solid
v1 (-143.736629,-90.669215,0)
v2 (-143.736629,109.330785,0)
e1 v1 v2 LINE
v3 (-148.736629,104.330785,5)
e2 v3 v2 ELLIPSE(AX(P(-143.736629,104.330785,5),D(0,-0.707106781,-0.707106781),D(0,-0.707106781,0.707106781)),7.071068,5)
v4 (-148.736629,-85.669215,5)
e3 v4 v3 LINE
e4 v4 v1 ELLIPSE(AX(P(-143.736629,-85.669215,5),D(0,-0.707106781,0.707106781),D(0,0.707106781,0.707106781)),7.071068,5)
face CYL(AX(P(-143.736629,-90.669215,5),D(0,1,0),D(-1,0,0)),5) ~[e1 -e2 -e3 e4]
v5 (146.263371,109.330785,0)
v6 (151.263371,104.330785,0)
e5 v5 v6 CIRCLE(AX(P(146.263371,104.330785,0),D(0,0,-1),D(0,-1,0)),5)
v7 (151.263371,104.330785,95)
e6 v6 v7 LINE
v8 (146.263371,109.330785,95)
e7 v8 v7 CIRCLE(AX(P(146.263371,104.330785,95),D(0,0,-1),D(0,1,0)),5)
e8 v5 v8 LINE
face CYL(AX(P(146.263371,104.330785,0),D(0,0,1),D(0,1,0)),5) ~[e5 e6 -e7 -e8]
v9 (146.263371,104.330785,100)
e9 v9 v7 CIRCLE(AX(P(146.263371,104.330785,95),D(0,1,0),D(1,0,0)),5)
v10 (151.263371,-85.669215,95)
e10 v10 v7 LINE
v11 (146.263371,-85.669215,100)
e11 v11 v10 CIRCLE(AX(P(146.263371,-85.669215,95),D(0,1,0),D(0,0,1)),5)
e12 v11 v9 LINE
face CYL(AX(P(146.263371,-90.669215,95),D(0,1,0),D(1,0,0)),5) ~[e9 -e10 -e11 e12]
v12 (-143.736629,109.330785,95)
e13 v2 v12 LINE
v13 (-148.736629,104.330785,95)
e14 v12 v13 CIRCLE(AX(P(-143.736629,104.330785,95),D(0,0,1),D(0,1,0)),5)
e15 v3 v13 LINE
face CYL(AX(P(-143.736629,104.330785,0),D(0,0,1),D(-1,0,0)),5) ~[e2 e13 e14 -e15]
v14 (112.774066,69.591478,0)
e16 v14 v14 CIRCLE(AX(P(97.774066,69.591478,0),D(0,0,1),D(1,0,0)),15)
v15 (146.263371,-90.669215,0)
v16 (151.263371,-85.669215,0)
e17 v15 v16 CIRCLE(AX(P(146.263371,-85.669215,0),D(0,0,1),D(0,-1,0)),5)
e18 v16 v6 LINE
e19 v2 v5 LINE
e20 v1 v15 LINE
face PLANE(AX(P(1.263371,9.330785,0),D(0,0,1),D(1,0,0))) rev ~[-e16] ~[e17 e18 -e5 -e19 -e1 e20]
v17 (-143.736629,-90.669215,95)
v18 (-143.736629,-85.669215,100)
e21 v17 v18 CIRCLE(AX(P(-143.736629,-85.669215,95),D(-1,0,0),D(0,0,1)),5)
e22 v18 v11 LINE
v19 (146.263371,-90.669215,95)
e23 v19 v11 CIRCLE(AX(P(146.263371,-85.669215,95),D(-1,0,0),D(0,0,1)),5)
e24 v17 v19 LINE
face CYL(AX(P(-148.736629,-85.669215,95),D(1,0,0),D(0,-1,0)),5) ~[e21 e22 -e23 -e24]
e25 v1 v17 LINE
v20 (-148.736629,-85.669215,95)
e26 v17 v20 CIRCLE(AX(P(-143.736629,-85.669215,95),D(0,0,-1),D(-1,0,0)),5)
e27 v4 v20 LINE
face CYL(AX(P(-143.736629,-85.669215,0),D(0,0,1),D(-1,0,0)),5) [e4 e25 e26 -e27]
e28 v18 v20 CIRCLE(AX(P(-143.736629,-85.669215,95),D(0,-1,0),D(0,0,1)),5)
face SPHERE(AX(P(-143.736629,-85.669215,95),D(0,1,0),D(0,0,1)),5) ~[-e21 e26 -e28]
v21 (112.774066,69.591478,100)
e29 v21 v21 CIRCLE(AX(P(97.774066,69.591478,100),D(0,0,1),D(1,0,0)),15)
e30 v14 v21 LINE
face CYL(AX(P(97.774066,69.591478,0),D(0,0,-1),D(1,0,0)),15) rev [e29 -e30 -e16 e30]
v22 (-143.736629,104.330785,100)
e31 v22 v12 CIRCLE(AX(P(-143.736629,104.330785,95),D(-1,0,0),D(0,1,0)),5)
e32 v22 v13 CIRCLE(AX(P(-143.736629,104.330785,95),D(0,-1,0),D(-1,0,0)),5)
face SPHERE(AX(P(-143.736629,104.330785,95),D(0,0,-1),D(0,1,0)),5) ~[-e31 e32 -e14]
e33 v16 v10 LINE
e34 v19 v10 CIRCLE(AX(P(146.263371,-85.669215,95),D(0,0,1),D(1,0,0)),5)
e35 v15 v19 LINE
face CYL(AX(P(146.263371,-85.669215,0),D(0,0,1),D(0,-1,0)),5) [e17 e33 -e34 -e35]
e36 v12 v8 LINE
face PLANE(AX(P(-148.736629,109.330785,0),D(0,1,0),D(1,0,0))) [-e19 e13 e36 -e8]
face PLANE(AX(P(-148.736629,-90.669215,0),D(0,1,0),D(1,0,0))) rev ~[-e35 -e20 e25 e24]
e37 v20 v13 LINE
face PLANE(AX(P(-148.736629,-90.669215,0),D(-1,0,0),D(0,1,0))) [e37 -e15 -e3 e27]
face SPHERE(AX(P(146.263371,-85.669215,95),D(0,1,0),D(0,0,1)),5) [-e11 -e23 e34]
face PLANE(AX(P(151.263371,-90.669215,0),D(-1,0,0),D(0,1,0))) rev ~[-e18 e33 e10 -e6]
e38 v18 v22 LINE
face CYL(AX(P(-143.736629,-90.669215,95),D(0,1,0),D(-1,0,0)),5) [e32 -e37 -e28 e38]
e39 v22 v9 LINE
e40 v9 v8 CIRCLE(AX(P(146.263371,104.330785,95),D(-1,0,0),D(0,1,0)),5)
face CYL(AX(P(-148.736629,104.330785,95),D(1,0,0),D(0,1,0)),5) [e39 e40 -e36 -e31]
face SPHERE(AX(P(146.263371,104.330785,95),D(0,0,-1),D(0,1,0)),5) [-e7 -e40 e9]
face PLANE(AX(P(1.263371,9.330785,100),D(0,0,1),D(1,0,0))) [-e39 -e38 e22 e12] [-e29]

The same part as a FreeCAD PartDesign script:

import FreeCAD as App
import Part
import Sketcher


def edges_at(feature, points):
    """Names of the edges that pass closest to the given points."""
    edges = feature.Shape.Edges
    near = lambda p: min(range(len(edges)), key=lambda i: edges[i].distToShape(Part.Vertex(*p))[0])
    return sorted({f"Edge{near(p) + 1}" for p in points})

doc = App.newDocument("Part")
body = doc.addObject("PartDesign::Body", "Body")

# Sketch on XY plane
sketch1 = body.newObject("Sketcher::SketchObject", "Sketch")
sketch1.AttachmentSupport = (doc.getObject("XY_Plane"), [""])
sketch1.MapMode = "FlatFace"
sketch1.addGeometry([
    Part.LineSegment(App.Vector(-149, 109, 0), App.Vector(-149, -91, 0)),  # 0
    Part.LineSegment(App.Vector(-149, -91, 0), App.Vector(151, -91, 0)),  # 1
    Part.LineSegment(App.Vector(151, -91, 0), App.Vector(151, 109, 0)),  # 2
    Part.LineSegment(App.Vector(151, 109, 0), App.Vector(-149, 109, 0)),  # 3
    Part.Circle(App.Vector(98, 70, 0), App.Vector(0, 0, 1), 15),  # 4
], False)
sketch1.addConstraint([
    Sketcher.Constraint("Coincident", 0, 2, 1, 1),
    Sketcher.Constraint("Coincident", 1, 2, 2, 1),
    Sketcher.Constraint("Coincident", 2, 2, 3, 1),
    Sketcher.Constraint("Coincident", 3, 2, 0, 1),
    Sketcher.Constraint("Vertical", 0),
    Sketcher.Constraint("Horizontal", 1),
    Sketcher.Constraint("Vertical", 2),
    Sketcher.Constraint("Horizontal", 3),
    Sketcher.Constraint("Diameter", 4, 30.0),
    Sketcher.Constraint("DistanceX", 1, 1, 1, 2, 300.0),
    Sketcher.Constraint("DistanceY", 0, 2, 0, 1, 200.0),
    Sketcher.Constraint("DistanceX", 0, 2, -1, 1, 148.736629),
    Sketcher.Constraint("DistanceX", -1, 1, 4, 3, 97.774066),
    Sketcher.Constraint("DistanceY", -1, 1, 4, 3, 69.591478),
    Sketcher.Constraint("DistanceY", 0, 2, -1, 1, 90.669215),
])
pad1 = body.newObject("PartDesign::Pad", "Pad")
pad1.Profile = sketch1
pad1.Length = 100
doc.recompute()

fillet = body.newObject("PartDesign::Fillet", "Fillet")
fillet.Base = (pad1, edges_at(pad1, [
    (-148.737, 109.331, 50),
    (151.263, 109.331, 50),
    (1.263, 109.331, 100),
    (151.263, 9.331, 100),
    (-148.737, 9.331, 100),
    (1.263, -90.669, 100),
    (-148.737, -90.669, 50),
    (-148.737, 9.331, 0),
    (151.263, -90.669, 50),
]))
fillet.Radius = 5

doc.recompute()
